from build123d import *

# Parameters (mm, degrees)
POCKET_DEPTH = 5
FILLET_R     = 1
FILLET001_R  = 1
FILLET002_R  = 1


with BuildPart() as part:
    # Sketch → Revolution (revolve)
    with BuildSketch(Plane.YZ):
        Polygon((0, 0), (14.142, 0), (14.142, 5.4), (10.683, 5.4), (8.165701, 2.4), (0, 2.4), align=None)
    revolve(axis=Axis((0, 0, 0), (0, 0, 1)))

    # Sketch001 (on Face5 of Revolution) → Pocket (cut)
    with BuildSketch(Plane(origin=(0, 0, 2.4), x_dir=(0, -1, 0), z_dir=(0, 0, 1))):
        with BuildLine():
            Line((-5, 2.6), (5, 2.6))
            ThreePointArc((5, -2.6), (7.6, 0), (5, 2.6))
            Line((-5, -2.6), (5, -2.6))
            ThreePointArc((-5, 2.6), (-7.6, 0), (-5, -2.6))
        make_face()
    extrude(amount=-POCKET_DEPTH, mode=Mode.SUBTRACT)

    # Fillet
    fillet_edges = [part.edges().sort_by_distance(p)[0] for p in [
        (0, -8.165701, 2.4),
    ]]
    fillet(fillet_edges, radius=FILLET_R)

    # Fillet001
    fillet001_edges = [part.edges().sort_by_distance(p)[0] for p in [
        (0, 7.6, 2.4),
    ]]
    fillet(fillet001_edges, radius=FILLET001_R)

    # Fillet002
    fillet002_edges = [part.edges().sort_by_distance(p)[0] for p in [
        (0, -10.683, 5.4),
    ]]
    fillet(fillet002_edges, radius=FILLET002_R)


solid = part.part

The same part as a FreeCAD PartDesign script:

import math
import FreeCAD as App
import Part
import Sketcher
Q = App.Units.Quantity


def edges_at(feature, points):
    """Names of the edges that pass closest to the given points."""
    edges = feature.Shape.Edges
    near = lambda p: min(range(len(edges)), key=lambda i: edges[i].distToShape(Part.Vertex(*p))[0])
    return sorted({f"Edge{near(p) + 1}" for p in points})

doc = App.newDocument("Part")
body = doc.addObject("PartDesign::Body", "Body")

# Sketch on YZ plane
sketch1 = doc.addObject("Sketcher::SketchObject", "Sketch")
body.addObject(sketch1)
sketch1.AttachmentSupport = (doc.YZ_Plane, [""])
sketch1.MapMode = "FlatFace"
sketch1.addGeometry([
    Part.LineSegment(App.Vector(0, 0, 0), App.Vector(14.142, 0, 0)),  # 0
    Part.LineSegment(App.Vector(14.142, 0, 0), App.Vector(14.142, 5.4, 0)),  # 1
    Part.LineSegment(App.Vector(14.142, 5.4, 0), App.Vector(10.683, 5.4, 0)),  # 2
    Part.LineSegment(App.Vector(10.683, 5.4, 0), App.Vector(8.165701, 2.4, 0)),  # 3
    Part.LineSegment(App.Vector(8.165701, 2.4, 0), App.Vector(0, 2.4, 0)),  # 4
    Part.LineSegment(App.Vector(0, 2.4, 0), App.Vector(0, 0, 0)),  # 5
], False)
sketch1.addConstraint([
    Sketcher.Constraint("Coincident", 0, 2, 1, 1),
    Sketcher.Constraint("Coincident", 1, 2, 2, 1),
    Sketcher.Constraint("Coincident", 2, 2, 3, 1),
    Sketcher.Constraint("Coincident", 3, 2, 4, 1),
    Sketcher.Constraint("Coincident", 4, 2, 5, 1),
    Sketcher.Constraint("Coincident", 5, 2, 0, 1),
    Sketcher.Constraint("Horizontal", 0),
    Sketcher.Constraint("Vertical", 1),
    Sketcher.Constraint("Horizontal", 2),
    Sketcher.Constraint("Horizontal", 4),
    Sketcher.Constraint("Vertical", 5),
    Sketcher.Constraint("Coincident", 5, 2, -1, 1),
    Sketcher.Constraint("Angle", 3, Q("-130.000001 deg")),
    Sketcher.Constraint("DistanceY", 1, 1, 1, 2, Q("5.4 mm")),
    Sketcher.Constraint("DistanceY", 5, 2, 5, 1, Q("2.4 mm")),
    Sketcher.Constraint("DistanceX", 0, 1, 0, 2, Q("14.142 mm")),
    Sketcher.Constraint("DistanceX", 2, 2, 2, 1, Q("3.459 mm")),
])
revolution = doc.addObject("PartDesign::Revolution", "Revolution")
body.addObject(revolution)
revolution.Profile = sketch1
revolution.ReferenceAxis = (sketch1, ["V_Axis"])
revolution.Angle = 360

# Sketch on XY plane
sketch2 = doc.addObject("Sketcher::SketchObject", "Sketch001")
body.addObject(sketch2)
sketch2.AttachmentSupport = (doc.XY_Plane, [""])
sketch2.MapMode = "FlatFace"
sketch2.AttachmentOffset = App.Placement(App.Vector(0, 0, 2.4), App.Rotation())
sketch2.addGeometry([
    Part.LineSegment(App.Vector(2.6, -5, 0), App.Vector(2.6, 5, 0)),
    Part.ArcOfCircle(Part.Circle(App.Vector(0, 5, 0), App.Vector(0, 0, 1), 2.6), math.radians(0), math.radians(180)),
    Part.LineSegment(App.Vector(-2.6, 5, 0), App.Vector(-2.6, -5, 0)),
    Part.ArcOfCircle(Part.Circle(App.Vector(0, -5, 0), App.Vector(0, 0, 1), 2.6), math.radians(180), math.radians(360)),
], False)
sketch2.addConstraint([
    Sketcher.Constraint("Tangent", 0, 2, 1, 1),
    Sketcher.Constraint("Tangent", 1, 2, 2, 1),
    Sketcher.Constraint("Tangent", 2, 2, 3, 1),
    Sketcher.Constraint("Tangent", 3, 2, 0, 1),
    Sketcher.Constraint("Vertical", 0),
    Sketcher.Constraint("Vertical", 2),
    Sketcher.Constraint("Symmetric", 1, 3, 3, 3, -1, 1),
    Sketcher.Constraint("Radius", 1, Q("2.6 mm")),
    Sketcher.Constraint("DistanceY", 0, 1, 0, 2, Q("10 mm")),
])
pocket1 = doc.addObject("PartDesign::Pocket", "Pocket")
body.addObject(pocket1)
pocket1.Profile = sketch2
pocket1.Length = 5
doc.recompute()

fillet = doc.addObject("PartDesign::Fillet", "Fillet")
body.addObject(fillet)
fillet.Base = (pocket1, edges_at(pocket1, [(0, -8.166, 2.4)]))
fillet.Radius = 1
doc.recompute()

fillet2 = doc.addObject("PartDesign::Fillet", "Fillet001")
body.addObject(fillet2)
fillet2.Base = (fillet, edges_at(fillet, [(0, 7.6, 2.4)]))
fillet2.Radius = 1
doc.recompute()

fillet3 = doc.addObject("PartDesign::Fillet", "Fillet002")
body.addObject(fillet3)
fillet3.Base = (fillet2, edges_at(fillet2, [(0, -10.683, 5.4)]))
fillet3.Radius = 1

doc.recompute()
